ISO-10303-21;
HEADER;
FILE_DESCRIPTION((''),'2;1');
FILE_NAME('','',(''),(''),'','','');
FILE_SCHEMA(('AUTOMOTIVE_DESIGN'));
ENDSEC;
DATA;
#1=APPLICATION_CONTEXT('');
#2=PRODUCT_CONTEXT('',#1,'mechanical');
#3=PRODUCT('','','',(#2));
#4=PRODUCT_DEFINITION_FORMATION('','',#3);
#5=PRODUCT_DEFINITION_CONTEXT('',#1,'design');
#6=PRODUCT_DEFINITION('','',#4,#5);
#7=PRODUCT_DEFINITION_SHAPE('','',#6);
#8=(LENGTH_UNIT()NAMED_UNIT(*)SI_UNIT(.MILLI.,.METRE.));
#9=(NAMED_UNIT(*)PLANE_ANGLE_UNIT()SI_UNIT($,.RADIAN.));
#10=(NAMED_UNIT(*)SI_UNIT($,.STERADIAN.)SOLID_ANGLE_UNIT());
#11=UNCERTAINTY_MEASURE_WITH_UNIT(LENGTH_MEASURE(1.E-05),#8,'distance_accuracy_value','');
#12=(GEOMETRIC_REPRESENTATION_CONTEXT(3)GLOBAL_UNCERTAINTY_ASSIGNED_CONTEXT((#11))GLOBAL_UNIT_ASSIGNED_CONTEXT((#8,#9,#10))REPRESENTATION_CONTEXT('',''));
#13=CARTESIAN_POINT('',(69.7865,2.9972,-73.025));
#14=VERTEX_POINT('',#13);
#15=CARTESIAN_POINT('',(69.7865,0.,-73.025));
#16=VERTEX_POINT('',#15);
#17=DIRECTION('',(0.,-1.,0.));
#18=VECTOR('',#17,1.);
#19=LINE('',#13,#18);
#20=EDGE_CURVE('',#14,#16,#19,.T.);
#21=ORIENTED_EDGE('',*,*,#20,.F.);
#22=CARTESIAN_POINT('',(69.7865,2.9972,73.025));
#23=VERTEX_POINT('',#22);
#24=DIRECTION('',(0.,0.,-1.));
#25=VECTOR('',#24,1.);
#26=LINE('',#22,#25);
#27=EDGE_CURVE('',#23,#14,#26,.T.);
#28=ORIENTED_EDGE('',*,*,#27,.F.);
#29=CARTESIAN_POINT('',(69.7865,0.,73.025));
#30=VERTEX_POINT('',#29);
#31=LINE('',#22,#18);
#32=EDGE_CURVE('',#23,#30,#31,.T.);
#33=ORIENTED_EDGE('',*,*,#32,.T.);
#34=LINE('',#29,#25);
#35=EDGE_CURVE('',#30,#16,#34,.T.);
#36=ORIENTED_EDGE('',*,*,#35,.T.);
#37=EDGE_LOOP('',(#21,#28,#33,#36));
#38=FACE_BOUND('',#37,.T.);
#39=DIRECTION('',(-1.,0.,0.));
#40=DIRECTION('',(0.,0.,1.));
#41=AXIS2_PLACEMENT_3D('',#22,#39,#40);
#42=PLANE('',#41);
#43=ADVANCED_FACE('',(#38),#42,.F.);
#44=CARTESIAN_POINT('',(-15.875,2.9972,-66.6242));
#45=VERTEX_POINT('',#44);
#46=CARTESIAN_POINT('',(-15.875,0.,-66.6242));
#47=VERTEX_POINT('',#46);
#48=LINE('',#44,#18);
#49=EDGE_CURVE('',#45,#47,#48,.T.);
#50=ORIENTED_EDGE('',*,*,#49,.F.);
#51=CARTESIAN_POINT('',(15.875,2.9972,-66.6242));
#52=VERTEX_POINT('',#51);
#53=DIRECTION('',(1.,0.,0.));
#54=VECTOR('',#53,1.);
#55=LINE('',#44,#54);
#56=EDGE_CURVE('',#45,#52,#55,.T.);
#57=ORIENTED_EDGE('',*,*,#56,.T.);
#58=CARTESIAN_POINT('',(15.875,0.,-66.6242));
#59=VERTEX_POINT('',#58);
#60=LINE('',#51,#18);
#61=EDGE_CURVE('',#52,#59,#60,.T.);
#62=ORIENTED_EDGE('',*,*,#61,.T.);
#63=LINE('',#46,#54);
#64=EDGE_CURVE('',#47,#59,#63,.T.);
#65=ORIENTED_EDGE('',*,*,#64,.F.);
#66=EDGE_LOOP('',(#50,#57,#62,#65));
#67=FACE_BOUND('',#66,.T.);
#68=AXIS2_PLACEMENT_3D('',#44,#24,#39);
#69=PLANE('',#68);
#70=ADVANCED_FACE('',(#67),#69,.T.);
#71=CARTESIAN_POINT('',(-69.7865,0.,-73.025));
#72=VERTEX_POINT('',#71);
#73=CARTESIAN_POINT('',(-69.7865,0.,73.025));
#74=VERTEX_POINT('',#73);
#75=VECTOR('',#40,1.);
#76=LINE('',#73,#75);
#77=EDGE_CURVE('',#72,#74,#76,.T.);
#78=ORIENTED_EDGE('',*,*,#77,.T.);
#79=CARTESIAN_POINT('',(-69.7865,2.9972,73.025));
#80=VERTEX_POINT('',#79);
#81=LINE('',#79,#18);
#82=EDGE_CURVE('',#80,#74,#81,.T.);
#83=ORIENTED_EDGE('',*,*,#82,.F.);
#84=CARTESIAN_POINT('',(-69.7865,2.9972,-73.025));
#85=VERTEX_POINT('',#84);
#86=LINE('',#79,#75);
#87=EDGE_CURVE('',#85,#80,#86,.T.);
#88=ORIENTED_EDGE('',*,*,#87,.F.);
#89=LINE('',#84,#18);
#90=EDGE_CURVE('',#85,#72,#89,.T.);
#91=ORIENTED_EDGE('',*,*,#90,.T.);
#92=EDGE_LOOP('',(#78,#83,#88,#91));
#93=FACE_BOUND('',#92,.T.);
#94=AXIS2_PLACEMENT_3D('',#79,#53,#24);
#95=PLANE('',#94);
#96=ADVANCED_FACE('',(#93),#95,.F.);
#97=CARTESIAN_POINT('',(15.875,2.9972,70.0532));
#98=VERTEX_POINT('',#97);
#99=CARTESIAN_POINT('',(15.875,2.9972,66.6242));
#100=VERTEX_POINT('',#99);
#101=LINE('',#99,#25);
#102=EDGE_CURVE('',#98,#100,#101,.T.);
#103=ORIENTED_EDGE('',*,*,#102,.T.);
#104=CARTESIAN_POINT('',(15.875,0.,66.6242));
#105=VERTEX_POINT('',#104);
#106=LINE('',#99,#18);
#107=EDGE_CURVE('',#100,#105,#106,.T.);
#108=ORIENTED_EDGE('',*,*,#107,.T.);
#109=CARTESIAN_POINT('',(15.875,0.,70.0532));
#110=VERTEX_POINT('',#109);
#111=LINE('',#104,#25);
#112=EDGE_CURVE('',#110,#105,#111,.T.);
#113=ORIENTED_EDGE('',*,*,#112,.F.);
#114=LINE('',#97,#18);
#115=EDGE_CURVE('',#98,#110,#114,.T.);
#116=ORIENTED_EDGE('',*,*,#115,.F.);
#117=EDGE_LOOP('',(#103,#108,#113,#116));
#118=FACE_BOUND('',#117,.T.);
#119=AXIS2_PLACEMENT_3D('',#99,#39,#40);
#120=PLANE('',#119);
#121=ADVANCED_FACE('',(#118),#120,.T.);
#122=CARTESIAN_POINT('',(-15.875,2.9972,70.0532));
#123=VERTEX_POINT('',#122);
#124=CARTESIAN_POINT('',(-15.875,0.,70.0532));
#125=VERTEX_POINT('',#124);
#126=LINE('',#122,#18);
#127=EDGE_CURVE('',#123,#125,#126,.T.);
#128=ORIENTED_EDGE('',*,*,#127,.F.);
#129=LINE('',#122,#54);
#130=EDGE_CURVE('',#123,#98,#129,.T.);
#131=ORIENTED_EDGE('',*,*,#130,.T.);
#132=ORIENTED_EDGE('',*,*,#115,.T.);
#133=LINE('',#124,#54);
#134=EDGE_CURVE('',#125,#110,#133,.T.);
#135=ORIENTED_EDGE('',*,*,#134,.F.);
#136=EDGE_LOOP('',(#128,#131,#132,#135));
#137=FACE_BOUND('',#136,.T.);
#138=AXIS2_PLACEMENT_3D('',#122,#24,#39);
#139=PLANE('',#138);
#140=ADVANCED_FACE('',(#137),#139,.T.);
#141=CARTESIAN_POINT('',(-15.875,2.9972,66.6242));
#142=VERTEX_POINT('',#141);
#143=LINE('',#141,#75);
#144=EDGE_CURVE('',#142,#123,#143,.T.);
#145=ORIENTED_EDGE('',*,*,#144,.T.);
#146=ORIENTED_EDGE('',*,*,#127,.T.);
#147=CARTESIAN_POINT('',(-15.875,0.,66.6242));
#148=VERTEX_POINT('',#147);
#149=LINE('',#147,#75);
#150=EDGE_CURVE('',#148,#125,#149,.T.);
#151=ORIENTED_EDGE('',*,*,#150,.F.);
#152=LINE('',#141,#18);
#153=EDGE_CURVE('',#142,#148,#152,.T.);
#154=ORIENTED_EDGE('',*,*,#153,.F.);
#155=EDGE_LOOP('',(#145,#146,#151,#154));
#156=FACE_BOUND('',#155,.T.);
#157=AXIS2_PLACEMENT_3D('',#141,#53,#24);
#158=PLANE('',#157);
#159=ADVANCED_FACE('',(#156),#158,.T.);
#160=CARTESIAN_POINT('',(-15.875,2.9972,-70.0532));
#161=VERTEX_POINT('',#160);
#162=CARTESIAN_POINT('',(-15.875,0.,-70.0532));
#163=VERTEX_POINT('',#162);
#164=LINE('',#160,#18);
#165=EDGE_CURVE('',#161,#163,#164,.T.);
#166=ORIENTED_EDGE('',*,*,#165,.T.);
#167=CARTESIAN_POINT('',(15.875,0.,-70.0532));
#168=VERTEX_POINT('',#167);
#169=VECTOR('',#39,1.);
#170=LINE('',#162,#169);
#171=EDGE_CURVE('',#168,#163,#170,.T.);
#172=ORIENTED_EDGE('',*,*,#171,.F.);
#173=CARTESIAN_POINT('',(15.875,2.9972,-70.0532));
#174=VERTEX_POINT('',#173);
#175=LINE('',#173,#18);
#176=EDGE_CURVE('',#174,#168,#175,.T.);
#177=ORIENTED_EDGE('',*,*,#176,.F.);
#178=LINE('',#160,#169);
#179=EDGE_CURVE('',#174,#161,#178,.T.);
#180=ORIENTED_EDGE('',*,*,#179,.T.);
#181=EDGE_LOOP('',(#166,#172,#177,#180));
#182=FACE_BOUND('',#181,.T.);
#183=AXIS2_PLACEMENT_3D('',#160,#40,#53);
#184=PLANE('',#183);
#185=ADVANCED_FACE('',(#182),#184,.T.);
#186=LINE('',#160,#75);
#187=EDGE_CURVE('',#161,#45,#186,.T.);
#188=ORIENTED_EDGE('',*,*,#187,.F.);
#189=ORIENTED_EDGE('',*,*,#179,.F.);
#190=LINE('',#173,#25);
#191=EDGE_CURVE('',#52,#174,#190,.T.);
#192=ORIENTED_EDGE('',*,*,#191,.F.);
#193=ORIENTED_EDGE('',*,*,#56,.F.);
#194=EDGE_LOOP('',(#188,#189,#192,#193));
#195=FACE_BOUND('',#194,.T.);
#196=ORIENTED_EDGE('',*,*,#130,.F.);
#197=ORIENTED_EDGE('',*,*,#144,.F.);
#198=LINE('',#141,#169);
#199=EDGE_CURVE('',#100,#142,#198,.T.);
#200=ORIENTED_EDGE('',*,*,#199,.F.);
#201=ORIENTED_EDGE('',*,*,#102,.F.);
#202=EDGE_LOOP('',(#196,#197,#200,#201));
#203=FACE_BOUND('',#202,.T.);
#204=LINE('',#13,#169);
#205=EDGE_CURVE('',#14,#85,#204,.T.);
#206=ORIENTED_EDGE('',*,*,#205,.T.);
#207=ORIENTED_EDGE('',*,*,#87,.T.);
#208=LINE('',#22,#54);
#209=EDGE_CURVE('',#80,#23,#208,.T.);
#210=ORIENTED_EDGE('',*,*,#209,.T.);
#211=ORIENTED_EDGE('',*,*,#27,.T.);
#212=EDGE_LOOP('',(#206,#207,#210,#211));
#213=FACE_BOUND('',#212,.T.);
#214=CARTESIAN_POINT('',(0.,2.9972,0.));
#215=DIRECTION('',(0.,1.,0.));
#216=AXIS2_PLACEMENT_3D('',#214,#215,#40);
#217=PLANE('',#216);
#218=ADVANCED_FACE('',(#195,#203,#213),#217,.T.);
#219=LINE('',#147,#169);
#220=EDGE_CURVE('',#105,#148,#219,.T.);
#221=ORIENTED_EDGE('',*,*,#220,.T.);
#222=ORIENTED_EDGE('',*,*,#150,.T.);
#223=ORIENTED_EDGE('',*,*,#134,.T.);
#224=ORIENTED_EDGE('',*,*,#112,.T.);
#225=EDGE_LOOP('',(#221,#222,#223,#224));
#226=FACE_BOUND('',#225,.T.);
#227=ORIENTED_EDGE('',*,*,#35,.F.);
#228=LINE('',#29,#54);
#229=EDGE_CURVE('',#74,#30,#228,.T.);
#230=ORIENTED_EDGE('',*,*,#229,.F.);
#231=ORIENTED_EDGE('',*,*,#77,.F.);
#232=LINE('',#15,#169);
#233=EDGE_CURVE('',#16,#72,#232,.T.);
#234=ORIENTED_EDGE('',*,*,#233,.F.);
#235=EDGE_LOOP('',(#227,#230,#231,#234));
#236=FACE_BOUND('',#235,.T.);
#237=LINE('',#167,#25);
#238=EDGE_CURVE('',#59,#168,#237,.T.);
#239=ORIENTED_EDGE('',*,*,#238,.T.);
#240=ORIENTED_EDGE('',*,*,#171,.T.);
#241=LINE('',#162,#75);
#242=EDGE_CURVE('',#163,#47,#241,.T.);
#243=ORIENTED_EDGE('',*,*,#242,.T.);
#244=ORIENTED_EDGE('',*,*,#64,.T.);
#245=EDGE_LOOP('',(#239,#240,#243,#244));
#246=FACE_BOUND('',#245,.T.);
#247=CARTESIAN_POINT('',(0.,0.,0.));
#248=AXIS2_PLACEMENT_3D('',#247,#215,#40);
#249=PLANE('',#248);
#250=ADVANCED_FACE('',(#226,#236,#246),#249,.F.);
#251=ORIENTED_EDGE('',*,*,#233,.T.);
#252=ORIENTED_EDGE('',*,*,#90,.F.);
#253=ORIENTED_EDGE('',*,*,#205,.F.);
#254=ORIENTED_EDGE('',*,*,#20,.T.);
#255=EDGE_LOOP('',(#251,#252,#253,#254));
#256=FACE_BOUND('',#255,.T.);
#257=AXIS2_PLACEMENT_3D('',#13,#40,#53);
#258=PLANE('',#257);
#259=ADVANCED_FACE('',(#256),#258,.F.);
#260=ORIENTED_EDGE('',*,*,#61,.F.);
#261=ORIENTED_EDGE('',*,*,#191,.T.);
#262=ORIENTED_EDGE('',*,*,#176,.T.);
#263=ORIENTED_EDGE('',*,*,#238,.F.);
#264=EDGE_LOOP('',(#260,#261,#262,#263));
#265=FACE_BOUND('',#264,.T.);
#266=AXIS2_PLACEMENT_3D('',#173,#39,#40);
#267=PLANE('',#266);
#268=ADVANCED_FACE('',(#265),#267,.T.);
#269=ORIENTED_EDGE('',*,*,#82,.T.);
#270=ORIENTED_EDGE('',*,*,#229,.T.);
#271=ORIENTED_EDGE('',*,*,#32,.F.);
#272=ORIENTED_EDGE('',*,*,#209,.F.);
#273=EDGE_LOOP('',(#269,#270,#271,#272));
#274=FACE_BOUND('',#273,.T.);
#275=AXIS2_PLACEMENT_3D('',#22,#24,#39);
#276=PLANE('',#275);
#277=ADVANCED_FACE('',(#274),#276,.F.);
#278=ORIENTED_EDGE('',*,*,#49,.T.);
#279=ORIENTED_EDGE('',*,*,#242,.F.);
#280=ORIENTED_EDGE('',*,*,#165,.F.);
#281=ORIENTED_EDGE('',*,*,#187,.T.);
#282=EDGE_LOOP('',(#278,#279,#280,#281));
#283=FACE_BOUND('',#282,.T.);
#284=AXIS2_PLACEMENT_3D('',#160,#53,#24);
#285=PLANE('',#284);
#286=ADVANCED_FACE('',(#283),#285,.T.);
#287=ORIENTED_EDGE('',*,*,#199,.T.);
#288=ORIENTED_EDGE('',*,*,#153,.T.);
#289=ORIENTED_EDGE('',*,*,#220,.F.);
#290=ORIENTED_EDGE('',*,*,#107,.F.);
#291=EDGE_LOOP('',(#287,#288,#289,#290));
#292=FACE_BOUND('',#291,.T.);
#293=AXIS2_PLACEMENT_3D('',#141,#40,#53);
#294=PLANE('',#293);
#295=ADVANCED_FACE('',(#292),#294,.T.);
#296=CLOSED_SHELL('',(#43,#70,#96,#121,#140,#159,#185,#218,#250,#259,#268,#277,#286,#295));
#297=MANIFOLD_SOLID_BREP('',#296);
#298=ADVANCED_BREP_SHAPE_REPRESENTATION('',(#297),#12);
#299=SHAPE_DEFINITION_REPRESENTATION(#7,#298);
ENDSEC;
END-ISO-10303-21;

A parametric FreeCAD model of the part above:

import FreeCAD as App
import Part
import Sketcher
Q = App.Units.Quantity

doc = App.newDocument("Part")
body = doc.addObject("PartDesign::Body", "Body")

sketch1 = doc.addObject("Sketcher::SketchObject", "Sketch")
body.addObject(sketch1)
sketch1.AttachmentSupport = (doc.XZ_Plane, [""])
sketch1.MapMode = "FlatFace"
sketch1.addGeometry([
    Part.LineSegment(App.Vector(-69.8, -73, 0), App.Vector(-69.8, 73, 0)),
    Part.LineSegment(App.Vector(-69.8, 73, 0), App.Vector(69.8, 73, 0)),
    Part.LineSegment(App.Vector(69.8, 73, 0), App.Vector(69.8, -73, 0)),
    Part.LineSegment(App.Vector(69.8, -73, 0), App.Vector(-69.8, -73, 0)),
    Part.LineSegment(App.Vector(15.9, 70.1, 0), App.Vector(-15.9, 70.1, 0)),
    Part.LineSegment(App.Vector(-15.9, 70.1, 0), App.Vector(-15.9, 66.6, 0)),
    Part.LineSegment(App.Vector(-15.9, 66.6, 0), App.Vector(15.9, 66.6, 0)),
    Part.LineSegment(App.Vector(15.9, 66.6, 0), App.Vector(15.9, 70.1, 0)),
    Part.LineSegment(App.Vector(15.9, -66.6, 0), App.Vector(-15.9, -66.6, 0)),
    Part.LineSegment(App.Vector(-15.9, -66.6, 0), App.Vector(-15.9, -70.1, 0)),
    Part.LineSegment(App.Vector(-15.9, -70.1, 0), App.Vector(15.9, -70.1, 0)),
    Part.LineSegment(App.Vector(15.9, -70.1, 0), App.Vector(15.9, -66.6, 0)),
], False)
sketch1.addConstraint([
    Sketcher.Constraint("Coincident", 0, 2, 1, 1),
    Sketcher.Constraint("Coincident", 1, 2, 2, 1),
    Sketcher.Constraint("Coincident", 2, 2, 3, 1),
    Sketcher.Constraint("Coincident", 3, 2, 0, 1),
    Sketcher.Constraint("Coincident", 4, 2, 5, 1),
    Sketcher.Constraint("Coincident", 5, 2, 6, 1),
    Sketcher.Constraint("Coincident", 6, 2, 7, 1),
    Sketcher.Constraint("Coincident", 7, 2, 4, 1),
    Sketcher.Constraint("Coincident", 8, 2, 9, 1),
    Sketcher.Constraint("Coincident", 9, 2, 10, 1),
    Sketcher.Constraint("Coincident", 10, 2, 11, 1),
    Sketcher.Constraint("Coincident", 11, 2, 8, 1),
    Sketcher.Constraint("Vertical", 0),
    Sketcher.Constraint("Horizontal", 1),
    Sketcher.Constraint("Vertical", 2),
    Sketcher.Constraint("Horizontal", 3),
    Sketcher.Constraint("Horizontal", 4),
    Sketcher.Constraint("Vertical", 5),
    Sketcher.Constraint("Horizontal", 6),
    Sketcher.Constraint("Vertical", 7),
    Sketcher.Constraint("Horizontal", 8),
    Sketcher.Constraint("Vertical", 9),
    Sketcher.Constraint("Horizontal", 10),
    Sketcher.Constraint("Vertical", 11),
    Sketcher.Constraint("Symmetric", 0, 2, 2, 2, -1, 1),
    Sketcher.Constraint("Symmetric", 6, 2, 8, 2, -1, 1),
    Sketcher.Constraint("Symmetric", 4, 2, 10, 2, -1, 1),
    Sketcher.Constraint("Vertical", 5, 2, 8, 2),
    Sketcher.Constraint("DistanceX", 4, 2, 4, 1, Q("1.25 in")),
    Sketcher.Constraint("DistanceY", 0, 1, 0, 2, Q("5.75 in")),
    Sketcher.Constraint("DistanceX", 1, 1, 1, 2, Q("5.495 in")),
    Sketcher.Constraint("DistanceY", 5, 2, 5, 1, Q("0.135 in")),
    Sketcher.Constraint("DistanceY", -1, 1, 4, 2, Q("2.758 in")),
])
pad1 = doc.addObject("PartDesign::Pad", "Pad")
body.addObject(pad1)
pad1.Profile = sketch1
pad1.Length = Q("0.118 in")
pad1.Reversed = True

doc.recompute()
